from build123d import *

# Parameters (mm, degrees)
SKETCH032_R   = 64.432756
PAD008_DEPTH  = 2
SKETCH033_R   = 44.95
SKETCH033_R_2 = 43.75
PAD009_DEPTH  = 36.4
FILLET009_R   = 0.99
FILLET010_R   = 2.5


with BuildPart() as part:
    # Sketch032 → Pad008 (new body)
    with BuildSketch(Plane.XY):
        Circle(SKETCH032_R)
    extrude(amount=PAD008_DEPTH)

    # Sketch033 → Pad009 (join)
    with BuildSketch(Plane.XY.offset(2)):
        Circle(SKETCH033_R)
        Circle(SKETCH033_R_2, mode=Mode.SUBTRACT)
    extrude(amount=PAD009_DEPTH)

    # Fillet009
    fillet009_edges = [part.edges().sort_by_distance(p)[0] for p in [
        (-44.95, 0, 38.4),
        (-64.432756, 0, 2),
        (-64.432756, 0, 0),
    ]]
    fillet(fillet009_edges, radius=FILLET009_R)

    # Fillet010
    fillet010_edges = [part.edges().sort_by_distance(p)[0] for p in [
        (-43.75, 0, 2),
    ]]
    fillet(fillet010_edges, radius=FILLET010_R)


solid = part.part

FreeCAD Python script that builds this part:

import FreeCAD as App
import Part
import Sketcher
from FreeCAD import Vector
Q = App.Units.Quantity


def edges_at(feature, points):
    """Names of the edges that pass closest to the given points."""
    edges = feature.Shape.Edges
    near = lambda p: min(range(len(edges)), key=lambda i: edges[i].distToShape(Part.Vertex(*p))[0])
    return sorted({f"Edge{near(p) + 1}" for p in points})

doc = App.newDocument("Part")
body = doc.addObject("PartDesign::Body", "Body")

sketch1 = body.newObject("Sketcher::SketchObject", "Sketch")
sketch1.AttachmentSupport = (doc.getObject("XY_Plane"), [""])
sketch1.MapMode = "FlatFace"
sketch1.addGeometry(Part.Circle(Vector(0, 0, 0), Vector(0, 0, 1), 64), False)
sketch1.addConstraint(Sketcher.Constraint("Coincident", 0, 3, -1, 1))
sketch1.addConstraint(Sketcher.Constraint("Diameter", 0, Q("128.865512 mm")))
pad1 = body.newObject("PartDesign::Pad", "Pad")
pad1.Profile = sketch1
pad1.Length = 2

sketch2 = body.newObject("Sketcher::SketchObject", "Sketch001")
sketch2.AttachmentSupport = (doc.getObject("XY_Plane"), [""])
sketch2.MapMode = "FlatFace"
sketch2.AttachmentOffset = App.Placement(Vector(0, 0, 2), App.Rotation())
sketch2.addGeometry(Part.Circle(Vector(0, 0, 0), Vector(0, 0, 1), 45), False)
sketch2.addGeometry(Part.Circle(Vector(0, 0, 0), Vector(0, 0, 1), 44), False)
sketch2.addConstraint(Sketcher.Constraint("Coincident", 0, 3, -1, 1))
sketch2.addConstraint(Sketcher.Constraint("Coincident", 1, 3, -1, 1))
sketch2.addConstraint(Sketcher.Constraint("Diameter", 0, Q("89.9 mm")))
sketch2.addConstraint(Sketcher.Constraint("Diameter", 1, Q("87.5 mm")))
pad2 = body.newObject("PartDesign::Pad", "Pad001")
pad2.Profile = sketch2
pad2.Length = 36.4
doc.recompute()

fillet = body.newObject("PartDesign::Fillet", "Fillet")
fillet.Base = (pad2, edges_at(pad2, [(-44.95, 0, 38.4), (-64.433, 0, 2), (-64.433, 0, 0)]))
fillet.Radius = 0.99
doc.recompute()

fillet2 = body.newObject("PartDesign::Fillet", "Fillet001")
fillet2.Base = (fillet, edges_at(fillet, [(-43.75, 0, 2)]))
fillet2.Radius = 2.5

doc.recompute()
